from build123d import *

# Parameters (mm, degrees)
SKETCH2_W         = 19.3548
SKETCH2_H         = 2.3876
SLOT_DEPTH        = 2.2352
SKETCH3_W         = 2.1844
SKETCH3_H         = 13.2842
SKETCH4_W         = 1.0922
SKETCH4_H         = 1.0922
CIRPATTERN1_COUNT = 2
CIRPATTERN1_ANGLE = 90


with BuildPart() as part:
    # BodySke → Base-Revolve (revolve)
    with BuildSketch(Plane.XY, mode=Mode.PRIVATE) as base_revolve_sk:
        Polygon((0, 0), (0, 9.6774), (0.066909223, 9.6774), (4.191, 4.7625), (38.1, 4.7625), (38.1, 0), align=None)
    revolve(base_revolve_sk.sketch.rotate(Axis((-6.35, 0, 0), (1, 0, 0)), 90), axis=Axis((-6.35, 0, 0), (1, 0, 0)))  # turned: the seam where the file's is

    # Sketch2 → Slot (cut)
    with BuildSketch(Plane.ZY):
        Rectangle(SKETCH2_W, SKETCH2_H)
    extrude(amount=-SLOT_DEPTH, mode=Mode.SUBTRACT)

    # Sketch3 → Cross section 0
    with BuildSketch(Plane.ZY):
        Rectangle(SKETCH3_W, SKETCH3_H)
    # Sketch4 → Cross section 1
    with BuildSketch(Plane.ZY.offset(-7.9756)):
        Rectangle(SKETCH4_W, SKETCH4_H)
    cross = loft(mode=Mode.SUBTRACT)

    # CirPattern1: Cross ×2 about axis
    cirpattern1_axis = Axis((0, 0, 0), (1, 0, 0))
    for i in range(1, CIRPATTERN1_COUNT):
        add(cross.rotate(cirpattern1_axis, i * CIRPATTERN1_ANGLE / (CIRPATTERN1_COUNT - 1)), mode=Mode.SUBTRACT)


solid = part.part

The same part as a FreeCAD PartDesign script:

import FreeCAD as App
import Part
import Sketcher
from FreeCAD import Vector
Q = App.Units.Quantity

doc = App.newDocument("Part")
body = doc.addObject("PartDesign::Body", "Body")

# Sketch on XY plane
sketch1 = doc.addObject("Sketcher::SketchObject", "Sketch")
body.addObject(sketch1)
sketch1.AttachmentSupport = (doc.XY_Plane, [""])
sketch1.MapMode = "FlatFace"
sketch1.addGeometry([
    Part.LineSegment(Vector(0, 9.68, 0), Vector(0, 0, 0)),  # 0
    Part.LineSegment(Vector(0, 0, 0), Vector(38.1, 0, 0)),  # 1
    Part.LineSegment(Vector(38.1, 0, 0), Vector(38.1, 4.76, 0)),  # 2
    Part.LineSegment(Vector(38.1, 4.76, 0), Vector(4.19, 4.76, 0)),  # 3
    Part.LineSegment(Vector(4.19, 4.76, 0), Vector(0.07, 9.68, 0)),  # 4
    Part.LineSegment(Vector(0.07, 9.68, 0), Vector(0, 9.68, 0)),  # 5
], False)
sketch1.addConstraint([
    Sketcher.Constraint("Coincident", 0, 2, 1, 1),
    Sketcher.Constraint("Coincident", 1, 2, 2, 1),
    Sketcher.Constraint("Coincident", 2, 2, 3, 1),
    Sketcher.Constraint("Coincident", 3, 2, 4, 1),
    Sketcher.Constraint("Coincident", 4, 2, 5, 1),
    Sketcher.Constraint("Coincident", 5, 2, 0, 1),
    Sketcher.Constraint("Vertical", 0),
    Sketcher.Constraint("Horizontal", 1),
    Sketcher.Constraint("Vertical", 2),
    Sketcher.Constraint("Horizontal", 3),
    Sketcher.Constraint("Horizontal", 5),
    Sketcher.Constraint("Coincident", 0, 2, -1, 1),
    Sketcher.Constraint("DistanceX", 1, 1, 1, 2, Q("1.5 in")),
    Sketcher.Constraint("Angle", 4, Q("130 deg")),
    Sketcher.Constraint("DistanceX", 3, 2, 3, 1, Q("1.335 in")),
    Sketcher.Constraint("DistanceY", 0, 2, 0, 1, Q("0.381 in")),
    Sketcher.Constraint("DistanceY", 2, 1, 2, 2, Q("0.1875 in")),
])
revolution = doc.addObject("PartDesign::Revolution", "Revolution")
body.addObject(revolution)
revolution.Profile = sketch1
revolution.ReferenceAxis = (sketch1, ["H_Axis"])
revolution.Angle = 360

# Sketch on YZ plane
sketch2 = doc.addObject("Sketcher::SketchObject", "Sketch001")
body.addObject(sketch2)
sketch2.AttachmentSupport = (doc.YZ_Plane, [""])
sketch2.MapMode = "FlatFace"
sketch2.addGeometry([
    Part.LineSegment(Vector(1.2, -9.7, 0), Vector(-1.2, -9.7, 0)),
    Part.LineSegment(Vector(-1.2, -9.7, 0), Vector(-1.2, 9.7, 0)),
    Part.LineSegment(Vector(-1.2, 9.7, 0), Vector(1.2, 9.7, 0)),
    Part.LineSegment(Vector(1.2, 9.7, 0), Vector(1.2, -9.7, 0)),
], False)
sketch2.addConstraint([
    Sketcher.Constraint("Coincident", 0, 2, 1, 1),
    Sketcher.Constraint("Coincident", 1, 2, 2, 1),
    Sketcher.Constraint("Coincident", 2, 2, 3, 1),
    Sketcher.Constraint("Coincident", 3, 2, 0, 1),
    Sketcher.Constraint("Horizontal", 0),
    Sketcher.Constraint("Vertical", 1),
    Sketcher.Constraint("Horizontal", 2),
    Sketcher.Constraint("Vertical", 3),
    Sketcher.Constraint("Symmetric", 0, 2, 2, 2, -1, 1),
    Sketcher.Constraint("DistanceX", 0, 2, 0, 1, Q("0.094 in")),
    Sketcher.Constraint("DistanceY", 1, 1, 1, 2, Q("0.762 in")),
])
pocket1 = doc.addObject("PartDesign::Pocket", "Pocket")
body.addObject(pocket1)
pocket1.Profile = sketch2
pocket1.Length = Q("0.088 in")
pocket1.Reversed = True

# Sketch on YZ plane
sketch3 = doc.addObject("Sketcher::SketchObject", "Sketch002")
body.addObject(sketch3)
sketch3.AttachmentSupport = (doc.YZ_Plane, [""])
sketch3.MapMode = "FlatFace"
sketch3.addGeometry([
    Part.LineSegment(Vector(6.6, -1.1, 0), Vector(-6.6, -1.1, 0)),
    Part.LineSegment(Vector(-6.6, -1.1, 0), Vector(-6.6, 1.1, 0)),
    Part.LineSegment(Vector(-6.6, 1.1, 0), Vector(6.6, 1.1, 0)),
    Part.LineSegment(Vector(6.6, 1.1, 0), Vector(6.6, -1.1, 0)),
], False)
sketch3.addConstraint([
    Sketcher.Constraint("Coincident", 0, 2, 1, 1),
    Sketcher.Constraint("Coincident", 1, 2, 2, 1),
    Sketcher.Constraint("Coincident", 2, 2, 3, 1),
    Sketcher.Constraint("Coincident", 3, 2, 0, 1),
    Sketcher.Constraint("Horizontal", 0),
    Sketcher.Constraint("Vertical", 1),
    Sketcher.Constraint("Horizontal", 2),
    Sketcher.Constraint("Vertical", 3),
    Sketcher.Constraint("Symmetric", 0, 2, 2, 2, -1, 1),
    Sketcher.Constraint("DistanceX", 0, 2, 0, 1, Q("0.523 in")),
    Sketcher.Constraint("DistanceY", 1, 1, 1, 2, Q("0.086 in")),
])

# Sketch on YZ plane
sketch4 = doc.addObject("Sketcher::SketchObject", "Sketch003")
body.addObject(sketch4)
sketch4.AttachmentSupport = (doc.YZ_Plane, [""])
sketch4.MapMode = "FlatFace"
sketch4.AttachmentOffset = App.Placement(Vector(0, 0, 0.314 * 25.4), App.Rotation())
sketch4.addGeometry([
    Part.LineSegment(Vector(0.5, -0.5, 0), Vector(-0.5, -0.5, 0)),
    Part.LineSegment(Vector(-0.5, -0.5, 0), Vector(-0.5, 0.5, 0)),
    Part.LineSegment(Vector(-0.5, 0.5, 0), Vector(0.5, 0.5, 0)),
    Part.LineSegment(Vector(0.5, 0.5, 0), Vector(0.5, -0.5, 0)),
], False)
sketch4.addConstraint([
    Sketcher.Constraint("Coincident", 0, 2, 1, 1),
    Sketcher.Constraint("Coincident", 1, 2, 2, 1),
    Sketcher.Constraint("Coincident", 2, 2, 3, 1),
    Sketcher.Constraint("Coincident", 3, 2, 0, 1),
    Sketcher.Constraint("Horizontal", 0),
    Sketcher.Constraint("Vertical", 1),
    Sketcher.Constraint("Horizontal", 2),
    Sketcher.Constraint("Vertical", 3),
    Sketcher.Constraint("Symmetric", 0, 2, 2, 2, -1, 1),
    Sketcher.Constraint("Equal", 2, 1),
    Sketcher.Constraint("DistanceX", 0, 2, 0, 1, Q("0.043 in")),
])

subtractiveloft = doc.addObject("PartDesign::SubtractiveLoft", "SubtractiveLoft")
body.addObject(subtractiveloft)
subtractiveloft.Profile = sketch3
subtractiveloft.Sections = [sketch4]
doc.recompute()

polarpattern = doc.addObject("PartDesign::PolarPattern", "PolarPattern")
body.addObject(polarpattern)
polarpattern.Originals = [subtractiveloft]
polarpattern.Axis = (doc.X_Axis, [""])
polarpattern.Angle = 90
polarpattern.Occurrences = 2
body.Tip = polarpattern

doc.recompute()
